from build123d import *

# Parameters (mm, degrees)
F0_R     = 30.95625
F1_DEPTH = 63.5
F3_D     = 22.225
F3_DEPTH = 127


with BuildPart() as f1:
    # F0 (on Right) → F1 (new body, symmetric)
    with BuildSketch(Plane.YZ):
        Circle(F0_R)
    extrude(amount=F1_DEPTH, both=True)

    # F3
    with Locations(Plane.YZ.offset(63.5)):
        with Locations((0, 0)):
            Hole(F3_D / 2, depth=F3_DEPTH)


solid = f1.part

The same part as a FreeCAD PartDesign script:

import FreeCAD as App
import Part
import Sketcher
Q = App.Units.Quantity

doc = App.newDocument("Part")
body = doc.addObject("PartDesign::Body", "Body")

# Sketch on YZ plane
sketch1 = body.newObject("Sketcher::SketchObject", "Sketch")
sketch1.AttachmentSupport = (doc.getObject("YZ_Plane"), [""])
sketch1.MapMode = "FlatFace"
sketch1.addGeometry(Part.Circle(App.Vector(0, 0, 0), App.Vector(0, 0, 1), 30.95625), False)
sketch1.addConstraint([
    Sketcher.Constraint("Coincident", 0, 3, -1, 1),
    Sketcher.Constraint("Diameter", 0, Q("2.4375 in")),
])
pad1 = body.newObject("PartDesign::Pad", "Pad")
pad1.Profile = sketch1
pad1.Length = Q("5 in")
pad1.Midplane = True

# Sketch on YZ plane
sketch2 = body.newObject("Sketcher::SketchObject", "Sketch001")
sketch2.AttachmentSupport = (doc.getObject("YZ_Plane"), [""])
sketch2.MapMode = "FlatFace"
sketch2.AttachmentOffset = App.Placement(App.Vector(0, 0, 2.5 * 25.4), App.Rotation())
sketch2.addGeometry(Part.Circle(App.Vector(0, 0, 0), App.Vector(0, 0, 1), 11.1125), False)
sketch2.addConstraint([
    Sketcher.Constraint("Coincident", 0, 3, -1, 1),
    Sketcher.Constraint("Diameter", 0, Q("0.875 in")),
])
doc.recompute()
hole = body.newObject("PartDesign::Hole", "Hole")
hole.Profile = sketch2
hole.ThreadType = "None"
hole.Diameter = Q("0.875 in")
hole.DepthType = "Dimension"
hole.Depth = Q("5 in")
hole.DrillPoint = "Flat"

doc.recompute()
